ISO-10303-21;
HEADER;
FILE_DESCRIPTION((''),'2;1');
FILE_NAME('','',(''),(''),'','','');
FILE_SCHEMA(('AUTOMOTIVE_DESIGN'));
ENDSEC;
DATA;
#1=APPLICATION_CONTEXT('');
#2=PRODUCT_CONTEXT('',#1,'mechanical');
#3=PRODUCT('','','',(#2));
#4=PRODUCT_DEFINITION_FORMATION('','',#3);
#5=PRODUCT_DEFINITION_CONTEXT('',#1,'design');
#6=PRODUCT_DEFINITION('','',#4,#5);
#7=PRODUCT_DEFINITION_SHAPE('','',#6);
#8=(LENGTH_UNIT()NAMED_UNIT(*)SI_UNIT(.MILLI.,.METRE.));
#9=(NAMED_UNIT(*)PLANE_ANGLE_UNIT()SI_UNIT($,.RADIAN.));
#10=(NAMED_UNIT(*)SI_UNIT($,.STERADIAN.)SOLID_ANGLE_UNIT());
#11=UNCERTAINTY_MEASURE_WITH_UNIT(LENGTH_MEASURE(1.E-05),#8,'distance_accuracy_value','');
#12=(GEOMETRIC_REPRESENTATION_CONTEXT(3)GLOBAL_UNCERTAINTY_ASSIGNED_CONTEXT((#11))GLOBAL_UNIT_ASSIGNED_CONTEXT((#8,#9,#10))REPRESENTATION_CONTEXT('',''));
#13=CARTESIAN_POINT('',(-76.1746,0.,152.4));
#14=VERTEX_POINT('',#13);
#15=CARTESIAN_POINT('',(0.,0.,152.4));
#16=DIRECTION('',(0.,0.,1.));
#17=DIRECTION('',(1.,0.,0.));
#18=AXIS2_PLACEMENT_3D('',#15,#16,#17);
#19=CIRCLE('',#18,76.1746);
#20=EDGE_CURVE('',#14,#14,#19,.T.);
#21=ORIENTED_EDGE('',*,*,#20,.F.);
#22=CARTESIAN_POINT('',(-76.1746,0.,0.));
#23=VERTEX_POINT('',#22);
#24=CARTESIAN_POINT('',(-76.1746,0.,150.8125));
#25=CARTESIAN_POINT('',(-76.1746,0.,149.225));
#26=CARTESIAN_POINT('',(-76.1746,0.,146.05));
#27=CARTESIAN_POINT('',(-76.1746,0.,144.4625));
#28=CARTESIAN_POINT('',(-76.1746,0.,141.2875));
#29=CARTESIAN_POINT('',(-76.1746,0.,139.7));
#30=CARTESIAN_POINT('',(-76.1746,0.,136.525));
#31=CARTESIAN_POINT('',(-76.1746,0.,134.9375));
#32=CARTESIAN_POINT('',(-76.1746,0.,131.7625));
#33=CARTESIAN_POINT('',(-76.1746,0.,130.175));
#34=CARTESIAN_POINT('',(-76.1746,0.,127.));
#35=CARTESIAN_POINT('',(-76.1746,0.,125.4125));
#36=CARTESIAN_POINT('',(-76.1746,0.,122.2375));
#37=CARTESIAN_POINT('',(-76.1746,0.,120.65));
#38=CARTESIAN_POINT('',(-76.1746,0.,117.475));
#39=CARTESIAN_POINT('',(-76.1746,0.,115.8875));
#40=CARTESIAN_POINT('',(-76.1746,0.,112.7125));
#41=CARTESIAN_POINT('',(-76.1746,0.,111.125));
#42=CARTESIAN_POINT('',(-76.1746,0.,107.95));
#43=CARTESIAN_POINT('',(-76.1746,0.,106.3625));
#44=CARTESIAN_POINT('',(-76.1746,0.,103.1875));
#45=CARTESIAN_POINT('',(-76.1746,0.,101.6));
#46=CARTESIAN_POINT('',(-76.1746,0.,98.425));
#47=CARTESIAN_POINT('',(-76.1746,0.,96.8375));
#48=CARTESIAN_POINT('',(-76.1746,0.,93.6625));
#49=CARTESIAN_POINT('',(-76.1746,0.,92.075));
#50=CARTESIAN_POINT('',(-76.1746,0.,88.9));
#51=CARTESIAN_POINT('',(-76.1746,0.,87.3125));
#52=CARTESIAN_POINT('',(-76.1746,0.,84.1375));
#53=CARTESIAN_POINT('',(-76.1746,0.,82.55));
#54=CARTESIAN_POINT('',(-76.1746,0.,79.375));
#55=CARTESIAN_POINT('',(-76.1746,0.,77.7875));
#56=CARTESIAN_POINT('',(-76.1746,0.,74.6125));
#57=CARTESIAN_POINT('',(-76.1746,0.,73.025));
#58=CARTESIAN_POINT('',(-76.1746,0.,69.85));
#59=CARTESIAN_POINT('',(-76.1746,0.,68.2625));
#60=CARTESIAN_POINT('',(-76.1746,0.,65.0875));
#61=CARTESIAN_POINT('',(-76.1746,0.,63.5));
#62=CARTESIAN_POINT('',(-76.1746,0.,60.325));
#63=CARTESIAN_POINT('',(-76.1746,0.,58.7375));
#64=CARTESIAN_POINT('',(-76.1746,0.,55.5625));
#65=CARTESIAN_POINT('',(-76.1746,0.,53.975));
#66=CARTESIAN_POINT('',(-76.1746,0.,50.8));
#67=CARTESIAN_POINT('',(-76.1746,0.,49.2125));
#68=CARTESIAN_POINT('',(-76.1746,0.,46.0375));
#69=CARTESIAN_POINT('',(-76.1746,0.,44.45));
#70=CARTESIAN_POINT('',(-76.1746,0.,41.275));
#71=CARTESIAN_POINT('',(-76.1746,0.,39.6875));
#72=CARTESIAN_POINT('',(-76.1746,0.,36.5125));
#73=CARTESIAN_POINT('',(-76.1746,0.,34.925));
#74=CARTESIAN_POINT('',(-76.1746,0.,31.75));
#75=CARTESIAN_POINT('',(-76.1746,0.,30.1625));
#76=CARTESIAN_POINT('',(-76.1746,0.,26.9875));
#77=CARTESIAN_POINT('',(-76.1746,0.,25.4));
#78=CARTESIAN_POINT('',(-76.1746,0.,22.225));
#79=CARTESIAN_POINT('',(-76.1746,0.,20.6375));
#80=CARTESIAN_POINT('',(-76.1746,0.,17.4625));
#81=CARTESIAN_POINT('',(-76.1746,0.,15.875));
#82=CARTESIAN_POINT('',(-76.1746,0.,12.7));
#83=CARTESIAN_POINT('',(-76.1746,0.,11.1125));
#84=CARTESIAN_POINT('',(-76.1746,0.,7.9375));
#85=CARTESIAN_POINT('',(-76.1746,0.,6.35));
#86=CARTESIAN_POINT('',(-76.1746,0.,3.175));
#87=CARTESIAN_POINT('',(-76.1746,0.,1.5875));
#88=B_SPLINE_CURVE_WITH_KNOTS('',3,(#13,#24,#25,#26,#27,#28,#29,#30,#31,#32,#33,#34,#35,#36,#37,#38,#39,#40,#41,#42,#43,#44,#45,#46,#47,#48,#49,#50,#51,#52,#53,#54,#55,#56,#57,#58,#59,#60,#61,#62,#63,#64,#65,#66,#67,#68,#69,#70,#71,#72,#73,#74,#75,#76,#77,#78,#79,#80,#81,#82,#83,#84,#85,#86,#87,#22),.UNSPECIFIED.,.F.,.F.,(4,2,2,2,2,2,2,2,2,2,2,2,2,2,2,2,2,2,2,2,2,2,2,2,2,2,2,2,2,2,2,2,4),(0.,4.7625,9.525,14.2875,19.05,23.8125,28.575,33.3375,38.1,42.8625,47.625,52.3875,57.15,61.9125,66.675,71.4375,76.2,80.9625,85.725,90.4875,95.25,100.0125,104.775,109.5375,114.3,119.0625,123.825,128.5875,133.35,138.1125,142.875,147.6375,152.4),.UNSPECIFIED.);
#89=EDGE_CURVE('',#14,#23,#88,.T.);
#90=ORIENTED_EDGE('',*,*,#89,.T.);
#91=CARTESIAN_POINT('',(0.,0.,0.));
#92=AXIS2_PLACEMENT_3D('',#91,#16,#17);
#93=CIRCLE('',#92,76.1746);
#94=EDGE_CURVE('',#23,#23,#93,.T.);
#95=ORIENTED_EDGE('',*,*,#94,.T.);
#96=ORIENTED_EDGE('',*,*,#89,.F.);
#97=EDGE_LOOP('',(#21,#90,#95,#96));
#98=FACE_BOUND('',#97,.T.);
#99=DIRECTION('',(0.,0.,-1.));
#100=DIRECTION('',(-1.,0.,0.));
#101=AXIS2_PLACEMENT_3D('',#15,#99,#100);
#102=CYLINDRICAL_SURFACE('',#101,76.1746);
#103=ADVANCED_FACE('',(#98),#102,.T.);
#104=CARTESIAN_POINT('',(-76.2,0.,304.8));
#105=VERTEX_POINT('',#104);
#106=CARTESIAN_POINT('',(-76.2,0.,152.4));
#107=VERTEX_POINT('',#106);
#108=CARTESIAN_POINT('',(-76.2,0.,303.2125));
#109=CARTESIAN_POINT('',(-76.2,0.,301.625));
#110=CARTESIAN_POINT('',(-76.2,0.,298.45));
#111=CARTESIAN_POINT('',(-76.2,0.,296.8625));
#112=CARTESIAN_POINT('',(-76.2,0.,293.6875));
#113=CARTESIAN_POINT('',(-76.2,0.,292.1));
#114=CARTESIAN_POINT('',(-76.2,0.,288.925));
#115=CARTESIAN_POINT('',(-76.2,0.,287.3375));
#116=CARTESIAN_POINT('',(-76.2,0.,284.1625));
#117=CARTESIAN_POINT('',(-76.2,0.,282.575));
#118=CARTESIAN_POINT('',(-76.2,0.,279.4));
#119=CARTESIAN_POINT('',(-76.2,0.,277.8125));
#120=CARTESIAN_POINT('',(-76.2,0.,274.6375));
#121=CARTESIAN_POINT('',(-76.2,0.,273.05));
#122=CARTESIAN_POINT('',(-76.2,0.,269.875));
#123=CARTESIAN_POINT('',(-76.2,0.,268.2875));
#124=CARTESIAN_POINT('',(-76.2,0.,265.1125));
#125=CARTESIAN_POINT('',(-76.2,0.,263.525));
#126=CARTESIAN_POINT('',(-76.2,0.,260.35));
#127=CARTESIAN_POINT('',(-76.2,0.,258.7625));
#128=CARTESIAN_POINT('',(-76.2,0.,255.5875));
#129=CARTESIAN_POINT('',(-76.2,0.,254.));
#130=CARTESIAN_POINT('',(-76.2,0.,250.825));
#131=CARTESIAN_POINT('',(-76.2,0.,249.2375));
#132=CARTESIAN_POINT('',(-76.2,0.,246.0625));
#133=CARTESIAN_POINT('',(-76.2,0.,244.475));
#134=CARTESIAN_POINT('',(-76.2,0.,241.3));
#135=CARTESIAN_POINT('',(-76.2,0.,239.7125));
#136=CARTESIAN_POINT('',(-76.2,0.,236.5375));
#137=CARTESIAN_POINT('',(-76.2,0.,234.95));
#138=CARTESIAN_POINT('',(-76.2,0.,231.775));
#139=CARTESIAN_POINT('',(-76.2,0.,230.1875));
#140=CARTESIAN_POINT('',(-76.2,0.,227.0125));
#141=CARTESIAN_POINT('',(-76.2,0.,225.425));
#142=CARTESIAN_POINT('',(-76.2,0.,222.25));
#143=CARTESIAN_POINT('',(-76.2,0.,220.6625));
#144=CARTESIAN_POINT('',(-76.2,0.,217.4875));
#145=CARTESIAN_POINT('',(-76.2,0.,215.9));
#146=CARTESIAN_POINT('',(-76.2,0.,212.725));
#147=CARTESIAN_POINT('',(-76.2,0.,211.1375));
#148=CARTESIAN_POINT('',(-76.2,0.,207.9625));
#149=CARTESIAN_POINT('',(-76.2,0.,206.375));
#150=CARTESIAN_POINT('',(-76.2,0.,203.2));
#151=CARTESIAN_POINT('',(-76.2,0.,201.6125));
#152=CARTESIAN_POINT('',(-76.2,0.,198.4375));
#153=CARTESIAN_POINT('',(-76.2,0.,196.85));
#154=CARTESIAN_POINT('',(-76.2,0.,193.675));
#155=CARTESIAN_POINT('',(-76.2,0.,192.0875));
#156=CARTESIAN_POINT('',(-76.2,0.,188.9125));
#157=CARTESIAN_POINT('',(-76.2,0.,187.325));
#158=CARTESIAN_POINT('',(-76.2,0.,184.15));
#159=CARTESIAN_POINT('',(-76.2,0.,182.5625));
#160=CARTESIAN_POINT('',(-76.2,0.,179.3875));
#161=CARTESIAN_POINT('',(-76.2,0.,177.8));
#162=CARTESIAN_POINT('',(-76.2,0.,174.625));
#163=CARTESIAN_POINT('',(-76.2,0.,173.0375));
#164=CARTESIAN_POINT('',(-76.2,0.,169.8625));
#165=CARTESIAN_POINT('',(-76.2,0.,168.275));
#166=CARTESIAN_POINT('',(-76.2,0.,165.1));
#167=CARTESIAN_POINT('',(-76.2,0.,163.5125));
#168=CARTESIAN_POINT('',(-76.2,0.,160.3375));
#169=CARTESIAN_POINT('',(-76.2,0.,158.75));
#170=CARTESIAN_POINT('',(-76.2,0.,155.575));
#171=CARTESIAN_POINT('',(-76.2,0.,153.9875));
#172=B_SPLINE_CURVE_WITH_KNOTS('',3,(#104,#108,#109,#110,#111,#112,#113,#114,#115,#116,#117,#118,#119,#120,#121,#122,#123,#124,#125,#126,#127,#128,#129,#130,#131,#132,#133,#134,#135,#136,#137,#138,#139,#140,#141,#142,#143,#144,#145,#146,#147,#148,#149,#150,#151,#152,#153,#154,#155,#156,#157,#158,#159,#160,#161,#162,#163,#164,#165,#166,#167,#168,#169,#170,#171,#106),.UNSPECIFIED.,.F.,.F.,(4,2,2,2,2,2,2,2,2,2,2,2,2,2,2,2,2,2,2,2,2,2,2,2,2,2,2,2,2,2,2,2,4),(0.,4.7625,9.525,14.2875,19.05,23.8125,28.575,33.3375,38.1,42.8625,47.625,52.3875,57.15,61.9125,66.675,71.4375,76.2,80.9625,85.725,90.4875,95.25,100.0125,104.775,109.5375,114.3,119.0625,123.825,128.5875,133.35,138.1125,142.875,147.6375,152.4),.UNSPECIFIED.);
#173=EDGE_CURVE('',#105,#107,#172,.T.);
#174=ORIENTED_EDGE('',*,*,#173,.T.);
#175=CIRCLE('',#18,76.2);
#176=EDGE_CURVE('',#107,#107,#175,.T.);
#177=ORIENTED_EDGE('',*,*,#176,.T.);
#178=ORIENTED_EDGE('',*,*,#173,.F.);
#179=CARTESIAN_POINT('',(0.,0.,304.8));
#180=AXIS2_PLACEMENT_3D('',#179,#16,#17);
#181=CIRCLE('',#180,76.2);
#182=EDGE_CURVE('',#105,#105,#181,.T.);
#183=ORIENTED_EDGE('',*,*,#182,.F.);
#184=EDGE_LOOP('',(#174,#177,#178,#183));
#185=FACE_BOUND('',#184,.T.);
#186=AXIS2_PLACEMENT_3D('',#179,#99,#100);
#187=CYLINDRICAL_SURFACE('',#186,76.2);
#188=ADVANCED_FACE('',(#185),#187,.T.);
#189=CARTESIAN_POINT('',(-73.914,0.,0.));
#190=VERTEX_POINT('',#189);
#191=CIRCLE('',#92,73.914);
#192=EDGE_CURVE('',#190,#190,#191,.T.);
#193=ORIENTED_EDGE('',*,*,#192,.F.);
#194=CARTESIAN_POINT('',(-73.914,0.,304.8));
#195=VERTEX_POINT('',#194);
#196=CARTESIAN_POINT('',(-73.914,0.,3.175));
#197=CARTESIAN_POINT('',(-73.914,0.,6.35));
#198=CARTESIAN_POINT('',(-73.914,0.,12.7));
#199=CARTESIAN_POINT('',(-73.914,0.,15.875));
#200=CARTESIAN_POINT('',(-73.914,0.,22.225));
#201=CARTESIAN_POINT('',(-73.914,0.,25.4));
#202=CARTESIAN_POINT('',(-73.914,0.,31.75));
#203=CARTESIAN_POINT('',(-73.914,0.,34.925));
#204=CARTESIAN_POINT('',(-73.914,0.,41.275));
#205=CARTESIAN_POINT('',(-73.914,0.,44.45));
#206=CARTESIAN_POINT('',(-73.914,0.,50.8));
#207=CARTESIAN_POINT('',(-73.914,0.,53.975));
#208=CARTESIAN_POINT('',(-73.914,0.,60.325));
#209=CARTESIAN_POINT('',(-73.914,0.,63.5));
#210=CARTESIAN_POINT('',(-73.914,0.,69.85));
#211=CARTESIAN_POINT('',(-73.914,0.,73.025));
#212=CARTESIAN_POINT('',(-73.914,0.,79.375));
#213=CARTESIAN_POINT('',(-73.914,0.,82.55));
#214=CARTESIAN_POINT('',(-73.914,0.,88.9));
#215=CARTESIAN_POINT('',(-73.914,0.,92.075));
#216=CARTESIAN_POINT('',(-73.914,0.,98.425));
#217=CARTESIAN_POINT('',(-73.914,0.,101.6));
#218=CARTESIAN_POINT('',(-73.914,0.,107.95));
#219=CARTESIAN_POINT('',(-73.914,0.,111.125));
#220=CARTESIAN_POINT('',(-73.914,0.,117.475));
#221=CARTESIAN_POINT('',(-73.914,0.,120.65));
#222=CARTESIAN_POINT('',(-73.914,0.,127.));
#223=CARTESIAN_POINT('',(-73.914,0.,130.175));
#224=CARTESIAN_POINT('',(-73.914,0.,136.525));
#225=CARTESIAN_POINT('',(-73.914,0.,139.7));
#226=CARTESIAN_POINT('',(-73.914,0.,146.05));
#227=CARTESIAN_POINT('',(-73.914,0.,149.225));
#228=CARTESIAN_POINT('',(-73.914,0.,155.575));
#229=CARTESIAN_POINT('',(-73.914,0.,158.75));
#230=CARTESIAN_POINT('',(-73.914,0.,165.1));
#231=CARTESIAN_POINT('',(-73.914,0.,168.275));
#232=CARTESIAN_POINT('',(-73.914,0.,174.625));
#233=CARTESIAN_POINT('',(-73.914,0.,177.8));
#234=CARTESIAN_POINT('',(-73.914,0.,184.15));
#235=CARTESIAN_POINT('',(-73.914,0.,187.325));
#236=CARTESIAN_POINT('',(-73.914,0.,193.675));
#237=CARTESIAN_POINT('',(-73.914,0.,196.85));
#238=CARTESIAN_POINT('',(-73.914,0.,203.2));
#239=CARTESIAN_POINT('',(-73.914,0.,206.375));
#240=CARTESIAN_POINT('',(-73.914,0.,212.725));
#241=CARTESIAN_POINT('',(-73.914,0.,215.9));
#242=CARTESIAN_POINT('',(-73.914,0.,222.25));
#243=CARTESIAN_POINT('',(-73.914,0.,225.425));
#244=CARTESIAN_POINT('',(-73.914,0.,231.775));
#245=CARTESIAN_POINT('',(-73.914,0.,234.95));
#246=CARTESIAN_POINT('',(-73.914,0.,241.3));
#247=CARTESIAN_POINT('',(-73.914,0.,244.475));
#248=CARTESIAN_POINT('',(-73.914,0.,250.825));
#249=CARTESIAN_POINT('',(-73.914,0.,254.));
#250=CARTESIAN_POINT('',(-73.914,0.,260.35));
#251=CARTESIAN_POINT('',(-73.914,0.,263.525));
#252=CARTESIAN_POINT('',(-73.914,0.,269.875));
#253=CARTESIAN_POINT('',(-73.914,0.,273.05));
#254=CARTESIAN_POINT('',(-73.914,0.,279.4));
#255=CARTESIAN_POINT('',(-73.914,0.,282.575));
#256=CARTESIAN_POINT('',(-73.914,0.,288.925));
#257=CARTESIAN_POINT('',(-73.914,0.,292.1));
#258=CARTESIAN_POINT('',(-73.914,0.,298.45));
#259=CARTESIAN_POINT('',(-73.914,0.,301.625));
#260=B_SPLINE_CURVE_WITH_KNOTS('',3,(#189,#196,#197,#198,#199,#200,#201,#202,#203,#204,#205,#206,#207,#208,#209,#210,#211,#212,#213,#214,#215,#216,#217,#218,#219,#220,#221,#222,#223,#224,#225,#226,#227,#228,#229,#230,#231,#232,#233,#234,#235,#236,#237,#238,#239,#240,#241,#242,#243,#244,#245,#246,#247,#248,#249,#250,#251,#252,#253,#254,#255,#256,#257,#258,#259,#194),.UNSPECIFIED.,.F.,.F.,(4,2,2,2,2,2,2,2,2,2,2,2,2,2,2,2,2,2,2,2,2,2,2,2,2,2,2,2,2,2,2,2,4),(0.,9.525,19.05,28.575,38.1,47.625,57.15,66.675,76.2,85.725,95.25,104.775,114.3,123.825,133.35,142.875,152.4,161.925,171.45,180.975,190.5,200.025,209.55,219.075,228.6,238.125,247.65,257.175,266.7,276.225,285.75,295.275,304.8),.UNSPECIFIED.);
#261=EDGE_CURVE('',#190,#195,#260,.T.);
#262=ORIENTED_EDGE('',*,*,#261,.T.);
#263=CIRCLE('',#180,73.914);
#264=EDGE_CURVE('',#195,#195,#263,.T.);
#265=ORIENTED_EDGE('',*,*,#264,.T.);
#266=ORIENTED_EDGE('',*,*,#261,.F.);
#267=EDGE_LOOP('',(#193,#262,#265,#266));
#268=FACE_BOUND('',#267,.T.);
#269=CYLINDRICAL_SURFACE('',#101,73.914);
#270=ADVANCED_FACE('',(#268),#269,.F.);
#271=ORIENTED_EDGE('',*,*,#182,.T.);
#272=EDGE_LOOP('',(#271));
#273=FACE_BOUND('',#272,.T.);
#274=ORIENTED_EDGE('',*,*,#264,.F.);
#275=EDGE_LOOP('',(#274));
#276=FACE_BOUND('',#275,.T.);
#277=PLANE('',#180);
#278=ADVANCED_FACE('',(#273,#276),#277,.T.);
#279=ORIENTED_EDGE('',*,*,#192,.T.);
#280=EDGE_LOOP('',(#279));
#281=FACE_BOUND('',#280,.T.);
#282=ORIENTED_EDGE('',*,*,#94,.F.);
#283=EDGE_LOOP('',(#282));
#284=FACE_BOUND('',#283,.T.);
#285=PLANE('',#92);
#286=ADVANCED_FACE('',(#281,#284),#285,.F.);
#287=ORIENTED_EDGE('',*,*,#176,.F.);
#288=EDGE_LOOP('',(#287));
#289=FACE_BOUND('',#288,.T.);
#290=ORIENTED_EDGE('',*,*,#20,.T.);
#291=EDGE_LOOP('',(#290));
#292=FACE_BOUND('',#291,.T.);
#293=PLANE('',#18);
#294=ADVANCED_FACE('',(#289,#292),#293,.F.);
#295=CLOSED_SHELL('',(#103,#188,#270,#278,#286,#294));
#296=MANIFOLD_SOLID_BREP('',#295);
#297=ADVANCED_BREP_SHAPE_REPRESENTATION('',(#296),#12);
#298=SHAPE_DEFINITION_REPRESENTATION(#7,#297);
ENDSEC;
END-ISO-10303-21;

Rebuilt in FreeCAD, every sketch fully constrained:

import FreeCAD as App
import Part
import Sketcher

V = App.Vector
Q = App.Units.Quantity

doc = App.newDocument("Part")
body = doc.addObject("PartDesign::Body", "Body")

sketch1 = body.newObject("Sketcher::SketchObject", "Sketch")
sketch1.AttachmentSupport = (doc.getObject("XY_Plane"), [""])
sketch1.MapMode = "FlatFace"
sketch1.addGeometry(Part.Circle(V(0, 0, 0), V(0, 0, 1), 76), False)
sketch1.addGeometry(Part.Circle(V(0, 0, 0), V(0, 0, 1), 74), False)
sketch1.addConstraint(Sketcher.Constraint("Coincident", 0, 3, -1, 1))
sketch1.addConstraint(Sketcher.Constraint("Coincident", 1, 3, -1, 1))
sketch1.addConstraint(Sketcher.Constraint("Diameter", 1, Q("5.82 in")))
sketch1.addConstraint(Sketcher.Constraint("Diameter", 0, Q("5.998 in")))
pad1 = body.newObject("PartDesign::Pad", "Pad")
pad1.Profile = sketch1
pad1.Length = Q("6 in")

sketch2 = body.newObject("Sketcher::SketchObject", "Sketch001")
sketch2.AttachmentSupport = (doc.getObject("XY_Plane"), [""])
sketch2.MapMode = "FlatFace"
sketch2.AttachmentOffset = App.Placement(V(0, 0, 6 * 25.4), App.Rotation())
sketch2.addGeometry(Part.Circle(V(0, 0, 0), V(0, 0, 1), 76), False)
sketch2.addGeometry(Part.Circle(V(0, 0, 0), V(0, 0, 1), 74), False)
sketch2.addConstraint(Sketcher.Constraint("Coincident", 0, 3, -1, 1))
sketch2.addConstraint(Sketcher.Constraint("Coincident", 1, 3, -1, 1))
sketch2.addConstraint(Sketcher.Constraint("Diameter", 0, Q("6 in")))
sketch2.addConstraint(Sketcher.Constraint("Diameter", 1, Q("5.82 in")))
pad2 = body.newObject("PartDesign::Pad", "Pad001")
pad2.Profile = sketch2
pad2.Length = Q("6 in")

doc.recompute()
